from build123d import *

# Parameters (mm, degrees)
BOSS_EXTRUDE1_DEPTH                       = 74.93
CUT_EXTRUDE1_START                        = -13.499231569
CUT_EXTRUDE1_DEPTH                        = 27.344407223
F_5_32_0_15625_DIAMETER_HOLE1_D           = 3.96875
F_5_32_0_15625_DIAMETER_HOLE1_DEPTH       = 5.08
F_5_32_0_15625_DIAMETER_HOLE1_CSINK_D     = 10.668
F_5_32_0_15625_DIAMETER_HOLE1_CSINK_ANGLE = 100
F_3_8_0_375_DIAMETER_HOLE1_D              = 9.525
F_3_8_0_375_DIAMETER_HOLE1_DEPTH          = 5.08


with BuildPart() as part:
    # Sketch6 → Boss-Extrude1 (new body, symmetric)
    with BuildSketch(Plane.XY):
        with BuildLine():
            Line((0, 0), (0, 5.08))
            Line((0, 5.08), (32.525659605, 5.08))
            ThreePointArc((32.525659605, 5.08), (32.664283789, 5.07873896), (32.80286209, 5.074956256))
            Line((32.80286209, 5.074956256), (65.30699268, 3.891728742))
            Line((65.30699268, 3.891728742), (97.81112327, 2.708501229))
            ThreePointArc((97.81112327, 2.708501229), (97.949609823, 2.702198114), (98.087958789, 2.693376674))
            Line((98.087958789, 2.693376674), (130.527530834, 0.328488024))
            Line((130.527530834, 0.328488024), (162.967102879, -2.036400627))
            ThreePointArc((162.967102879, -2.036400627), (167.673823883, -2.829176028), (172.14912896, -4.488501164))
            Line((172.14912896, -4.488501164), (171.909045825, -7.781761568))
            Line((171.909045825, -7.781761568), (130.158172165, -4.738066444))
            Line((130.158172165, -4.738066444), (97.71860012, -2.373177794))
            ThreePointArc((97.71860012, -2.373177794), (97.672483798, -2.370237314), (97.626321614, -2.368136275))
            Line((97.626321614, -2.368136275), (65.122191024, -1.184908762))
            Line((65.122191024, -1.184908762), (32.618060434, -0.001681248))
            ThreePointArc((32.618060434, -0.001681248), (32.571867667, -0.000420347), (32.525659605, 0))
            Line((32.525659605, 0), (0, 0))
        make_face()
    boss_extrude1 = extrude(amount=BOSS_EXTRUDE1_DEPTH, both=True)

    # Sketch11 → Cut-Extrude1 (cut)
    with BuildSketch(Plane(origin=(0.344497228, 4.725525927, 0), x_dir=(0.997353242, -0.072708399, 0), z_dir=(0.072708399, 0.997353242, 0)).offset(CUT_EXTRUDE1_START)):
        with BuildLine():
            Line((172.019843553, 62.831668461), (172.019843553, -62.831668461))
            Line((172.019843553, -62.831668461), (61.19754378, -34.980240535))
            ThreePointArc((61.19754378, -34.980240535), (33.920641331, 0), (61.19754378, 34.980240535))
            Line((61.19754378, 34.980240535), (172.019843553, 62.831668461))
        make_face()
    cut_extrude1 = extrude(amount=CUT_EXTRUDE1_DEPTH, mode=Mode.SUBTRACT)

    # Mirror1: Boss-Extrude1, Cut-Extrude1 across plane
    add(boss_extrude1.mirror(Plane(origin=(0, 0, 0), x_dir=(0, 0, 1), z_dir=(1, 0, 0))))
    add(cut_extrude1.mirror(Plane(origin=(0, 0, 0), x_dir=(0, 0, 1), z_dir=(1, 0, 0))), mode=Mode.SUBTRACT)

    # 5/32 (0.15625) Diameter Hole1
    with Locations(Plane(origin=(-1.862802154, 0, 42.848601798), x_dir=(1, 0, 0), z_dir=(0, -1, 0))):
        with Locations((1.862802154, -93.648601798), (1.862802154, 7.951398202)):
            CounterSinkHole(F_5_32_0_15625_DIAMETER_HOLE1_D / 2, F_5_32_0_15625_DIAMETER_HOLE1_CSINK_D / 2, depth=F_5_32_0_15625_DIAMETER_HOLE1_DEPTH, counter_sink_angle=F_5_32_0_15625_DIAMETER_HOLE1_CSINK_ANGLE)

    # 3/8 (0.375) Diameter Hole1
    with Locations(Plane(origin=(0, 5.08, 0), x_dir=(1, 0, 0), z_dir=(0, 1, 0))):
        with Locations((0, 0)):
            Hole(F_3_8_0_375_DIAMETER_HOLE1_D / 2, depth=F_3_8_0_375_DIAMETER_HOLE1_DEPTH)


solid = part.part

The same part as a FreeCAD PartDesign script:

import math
import FreeCAD as App
import Part
import Sketcher
Q = App.Units.Quantity

doc = App.newDocument("Part")
params = doc.addObject("Spreadsheet::Sheet", "Params")
for row, (alias, value) in enumerate([
    ("sketch1_radius", "1 in"),
    ("sketch1_radius2", "0.1 in"),
    ("sketch1_radius3", "0.3 in"),
    ("sketch1_length", "0.13 in"),
    ("pad1_length", "5.9 in"),
    ("sketch2_radius", "1.42 in"),
    ("pocket1_length", "27.344407 mm"),
    ("sketch3_diameter", "0.15625 in"),
    ("hole_diameter", "0.15625 in"),
    ("hole_depth", "0.2 in"),
    ("hole_csink_diameter", "0.42 in"),
    ("sketch4_diameter", "0.375 in"),
    ("hole2_diameter", "0.375 in"),
    ("hole2_depth", "0.2 in"),
], start=1):
    params.set(f"A{row}", alias)
    params.set(f"B{row}", "=" + value)
    params.setAlias(f"B{row}", alias)

body = doc.addObject("PartDesign::Body", "Body")

# Sketch on XY plane
sketch1 = body.newObject("Sketcher::SketchObject", "Sketch")
sketch1.AttachmentSupport = (doc.getObject("XY_Plane"), [""])
sketch1.MapMode = "FlatFace"
sketch1.addGeometry([
    Part.LineSegment(App.Vector(0, 5.08, 0), App.Vector(0, 0, 0)),  # 0
    Part.LineSegment(App.Vector(0, 0, 0), App.Vector(32.53, 0, 0)),  # 1
    Part.ArcOfCircle(Part.Circle(App.Vector(32.53, -2.54, 0), App.Vector(0, 0, 1), 2.54), math.radians(87.92), math.radians(90)),  # 2
    Part.LineSegment(App.Vector(32.62, 0, 0), App.Vector(65.12, -1.18, 0)),  # 3
    Part.LineSegment(App.Vector(65.12, -1.18, 0), App.Vector(97.63, -2.37, 0)),  # 4
    Part.ArcOfCircle(Part.Circle(App.Vector(97.53, -4.91, 0), App.Vector(0, 0, 1), 2.54), math.radians(85.83), math.radians(87.92)),  # 5
    Part.LineSegment(App.Vector(97.72, -2.37, 0), App.Vector(130.16, -4.74, 0)),  # 6
    Part.LineSegment(App.Vector(130.16, -4.74, 0), App.Vector(171.91, -7.78, 0)),  # 7
    Part.LineSegment(App.Vector(171.91, -7.78, 0), App.Vector(172.15, -4.49, 0)),  # 8
    Part.ArcOfCircle(Part.Circle(App.Vector(161.12, -27.37, 0), App.Vector(0, 0, 1), 25.4), math.radians(64), math.radians(86)),  # 9
    Part.LineSegment(App.Vector(162.97, -2.04, 0), App.Vector(130.53, 0.33, 0)),  # 10
    Part.LineSegment(App.Vector(130.53, 0.33, 0), App.Vector(98.09, 2.69, 0)),  # 11
    Part.ArcOfCircle(Part.Circle(App.Vector(97.53, -4.91, 0), App.Vector(0, 0, 1), 7.62), math.radians(85.83), math.radians(87.92)),  # 12
    Part.LineSegment(App.Vector(97.81, 2.71, 0), App.Vector(65.31, 3.89, 0)),  # 13
    Part.LineSegment(App.Vector(65.31, 3.89, 0), App.Vector(32.8, 5.07, 0)),  # 14
    Part.ArcOfCircle(Part.Circle(App.Vector(32.53, -2.54, 0), App.Vector(0, 0, 1), 7.62), math.radians(87.92), math.radians(90)),  # 15
    Part.LineSegment(App.Vector(32.53, 5.08, 0), App.Vector(0, 5.08, 0)),  # 16
], False)
sketch1.addConstraint([
    Sketcher.Constraint("Coincident", 0, 2, 1, 1),
    Sketcher.Constraint("Tangent", 1, 2, 2, 2),
    Sketcher.Constraint("Tangent", 2, 1, 3, 1),
    Sketcher.Constraint("Coincident", 3, 2, 4, 1),
    Sketcher.Constraint("Tangent", 4, 2, 5, 2),
    Sketcher.Constraint("Tangent", 5, 1, 6, 1),
    Sketcher.Constraint("Coincident", 6, 2, 7, 1),
    Sketcher.Constraint("Coincident", 7, 2, 8, 1),
    Sketcher.Constraint("Coincident", 8, 2, 9, 1),
    Sketcher.Constraint("Tangent", 9, 2, 10, 1),
    Sketcher.Constraint("Coincident", 10, 2, 11, 1),
    Sketcher.Constraint("Tangent", 11, 2, 12, 1),
    Sketcher.Constraint("Tangent", 12, 2, 13, 1),
    Sketcher.Constraint("Coincident", 13, 2, 14, 1),
    Sketcher.Constraint("Tangent", 14, 2, 15, 1),
    Sketcher.Constraint("Tangent", 15, 2, 16, 1),
    Sketcher.Constraint("Coincident", 16, 2, 0, 1),
    Sketcher.Constraint("Vertical", 0),
    Sketcher.Constraint("Horizontal", 1),
    Sketcher.Constraint("Horizontal", 16),
    Sketcher.Constraint("Coincident", 0, 2, -1, 1),
    Sketcher.Constraint("Coincident", 12, 3, 5, 3),
    Sketcher.Constraint("Coincident", 15, 3, 2, 3),
    Sketcher.Constraint("Equal", 2, 5),
    Sketcher.Constraint("Parallel", 3, 4),
    Sketcher.Constraint("Parallel", 6, 7),
    Sketcher.Constraint("Perpendicular", 7, 8),
    Sketcher.Constraint("Perpendicular", 8, 10),
    Sketcher.Constraint("Parallel", 10, 11),
    Sketcher.Constraint("Parallel", 4, 13),
    Sketcher.Constraint("Parallel", 13, 14),
    Sketcher.Constraint("Equal", 3, 4),
    Sketcher.Constraint("Equal", 4, 6),
    Sketcher.Constraint("Equal", 6, 10),
    Sketcher.Constraint("Equal", 10, 11),
    Sketcher.Constraint("Equal", 11, 13),
    Sketcher.Constraint("Radius", 9, Q("1 in")),
    Sketcher.Constraint("Radius", 2, Q("0.1 in")),
    Sketcher.Constraint("Radius", 12, Q("0.3 in")),
    Sketcher.Constraint("Distance", 8, Q("0.13 in")),
    Sketcher.Constraint("DistanceY", 12, 3, 10, 2, Q("0.2061001 in")),
    Sketcher.Constraint("DistanceX", 1, 1, 1, 2, Q("32.52566 mm")),
    Sketcher.Constraint("DistanceX", -1, 1, 5, 1, Q("97.7186 mm")),
    Sketcher.Constraint("DistanceY", 8, 2, -1, 1, Q("4.488501 mm")),
])
sketch1.setExpression("Constraints[36]", "Params.sketch1_radius")
sketch1.setExpression("Constraints[37]", "Params.sketch1_radius2")
sketch1.setExpression("Constraints[38]", "Params.sketch1_radius3")
sketch1.setExpression("Constraints[39]", "Params.sketch1_length")
pad1 = body.newObject("PartDesign::Pad", "Pad")
pad1.Profile = sketch1
pad1.setExpression("Length", "Params.pad1_length")
pad1.Midplane = True

# Sketch on an angled plane
sketch2 = body.newObject("Sketcher::SketchObject", "Sketch001")
sketch2.Placement = App.Placement(App.Vector(-0.63701, -8.737976, 0), App.Rotation(App.Vector(0.997353242, -0.072708399, 0), App.Vector(0, 0, -1.000000001), App.Vector(0.072708399, 0.997353242, 0), "ZXY"))
sketch2.addGeometry([
    Part.LineSegment(App.Vector(172, -63, 0), App.Vector(172, 63, 0)),
    Part.LineSegment(App.Vector(172, 63, 0), App.Vector(61, 35, 0)),
    Part.ArcOfCircle(Part.Circle(App.Vector(70, 0, 0), App.Vector(0, 0, 1), 36), math.radians(104), math.radians(256)),
    Part.LineSegment(App.Vector(61, -35, 0), App.Vector(172, -63, 0)),
], False)
sketch2.addConstraint([
    Sketcher.Constraint("Coincident", 0, 2, 1, 1),
    Sketcher.Constraint("Tangent", 1, 2, 2, 1),
    Sketcher.Constraint("Tangent", 2, 2, 3, 1),
    Sketcher.Constraint("Coincident", 3, 2, 0, 1),
    Sketcher.Constraint("Vertical", 0),
    Sketcher.Constraint("Symmetric", 1, 2, 2, 2, -1),
    Sketcher.Constraint("Radius", 2, Q("1.42 in")),
    Sketcher.Constraint("DistanceX", 1, 2, 0, 2, Q("110.8223 mm")),
    Sketcher.Constraint("DistanceY", 0, 1, 0, 2, Q("125.663337 mm")),
    Sketcher.Constraint("DistanceX", -1, 1, 2, 3, Q("69.988641 mm")),
])
sketch2.setExpression("Constraints[6]", "Params.sketch2_radius")
pocket1 = body.newObject("PartDesign::Pocket", "Pocket")
pocket1.Profile = sketch2
pocket1.setExpression("Length", "Params.pocket1_length")
pocket1.Reversed = True
doc.recompute()

mirrored = body.newObject("PartDesign::Mirrored", "Mirrored")
mirrored.Originals = [pad1, pocket1]
mirrored.MirrorPlane = (doc.getObject("YZ_Plane"), [""])
body.Tip = mirrored

# Sketch on XZ plane
sketch3 = body.newObject("Sketcher::SketchObject", "Sketch002")
sketch3.AttachmentSupport = (doc.getObject("XZ_Plane"), [""])
sketch3.MapMode = "FlatFace"
sketch3.addGeometry([
    Part.Circle(App.Vector(0, -50.8, 0), App.Vector(0, 0, 1), 2),
    Part.Circle(App.Vector(0, 50.8, 0), App.Vector(0, 0, 1), 2),
], False)
sketch3.addConstraint([
    Sketcher.Constraint("Equal", 0, 1),
    Sketcher.Constraint("Symmetric", 0, 3, 1, 3, -1, 1),
    Sketcher.Constraint("PointOnObject", 0, 3, -2),
    Sketcher.Constraint("Diameter", 0, Q("0.15625 in")),
    Sketcher.Constraint("DistanceY", 0, 3, -1, 1, Q("2 in")),
])
sketch3.setExpression("Constraints[3]", "Params.sketch3_diameter")
doc.recompute()
hole = body.newObject("PartDesign::Hole", "Hole")
hole.Profile = sketch3
hole.ThreadType = "None"
hole.setExpression("Diameter", "Params.hole_diameter")
hole.DepthType = "Dimension"
hole.setExpression("Depth", "Params.hole_depth")
hole.DrillPoint = "Flat"
hole.HoleCutType = "Countersink"
hole.setExpression("HoleCutDiameter", "Params.hole_csink_diameter")
hole.HoleCutCountersinkAngle = 100

# Sketch on XZ plane
sketch4 = body.newObject("Sketcher::SketchObject", "Sketch003")
sketch4.AttachmentSupport = (doc.getObject("XZ_Plane"), [""])
sketch4.MapMode = "FlatFace"
sketch4.AttachmentOffset = App.Placement(App.Vector(0, 0, -0.2 * 25.4), App.Rotation())
sketch4.addGeometry(Part.Circle(App.Vector(0, 0, 0), App.Vector(0, 0, 1), 4.8), False)
sketch4.addConstraint([
    Sketcher.Constraint("Coincident", 0, 3, -1, 1),
    Sketcher.Constraint("Diameter", 0, Q("0.375 in")),
])
sketch4.setExpression("Constraints[1]", "Params.sketch4_diameter")
doc.recompute()
hole2 = body.newObject("PartDesign::Hole", "Hole001")
hole2.Profile = sketch4
hole2.ThreadType = "None"
hole2.setExpression("Diameter", "Params.hole2_diameter")
hole2.DepthType = "Dimension"
hole2.setExpression("Depth", "Params.hole2_depth")
hole2.DrillPoint = "Flat"
hole2.Reversed = True

doc.recompute()
